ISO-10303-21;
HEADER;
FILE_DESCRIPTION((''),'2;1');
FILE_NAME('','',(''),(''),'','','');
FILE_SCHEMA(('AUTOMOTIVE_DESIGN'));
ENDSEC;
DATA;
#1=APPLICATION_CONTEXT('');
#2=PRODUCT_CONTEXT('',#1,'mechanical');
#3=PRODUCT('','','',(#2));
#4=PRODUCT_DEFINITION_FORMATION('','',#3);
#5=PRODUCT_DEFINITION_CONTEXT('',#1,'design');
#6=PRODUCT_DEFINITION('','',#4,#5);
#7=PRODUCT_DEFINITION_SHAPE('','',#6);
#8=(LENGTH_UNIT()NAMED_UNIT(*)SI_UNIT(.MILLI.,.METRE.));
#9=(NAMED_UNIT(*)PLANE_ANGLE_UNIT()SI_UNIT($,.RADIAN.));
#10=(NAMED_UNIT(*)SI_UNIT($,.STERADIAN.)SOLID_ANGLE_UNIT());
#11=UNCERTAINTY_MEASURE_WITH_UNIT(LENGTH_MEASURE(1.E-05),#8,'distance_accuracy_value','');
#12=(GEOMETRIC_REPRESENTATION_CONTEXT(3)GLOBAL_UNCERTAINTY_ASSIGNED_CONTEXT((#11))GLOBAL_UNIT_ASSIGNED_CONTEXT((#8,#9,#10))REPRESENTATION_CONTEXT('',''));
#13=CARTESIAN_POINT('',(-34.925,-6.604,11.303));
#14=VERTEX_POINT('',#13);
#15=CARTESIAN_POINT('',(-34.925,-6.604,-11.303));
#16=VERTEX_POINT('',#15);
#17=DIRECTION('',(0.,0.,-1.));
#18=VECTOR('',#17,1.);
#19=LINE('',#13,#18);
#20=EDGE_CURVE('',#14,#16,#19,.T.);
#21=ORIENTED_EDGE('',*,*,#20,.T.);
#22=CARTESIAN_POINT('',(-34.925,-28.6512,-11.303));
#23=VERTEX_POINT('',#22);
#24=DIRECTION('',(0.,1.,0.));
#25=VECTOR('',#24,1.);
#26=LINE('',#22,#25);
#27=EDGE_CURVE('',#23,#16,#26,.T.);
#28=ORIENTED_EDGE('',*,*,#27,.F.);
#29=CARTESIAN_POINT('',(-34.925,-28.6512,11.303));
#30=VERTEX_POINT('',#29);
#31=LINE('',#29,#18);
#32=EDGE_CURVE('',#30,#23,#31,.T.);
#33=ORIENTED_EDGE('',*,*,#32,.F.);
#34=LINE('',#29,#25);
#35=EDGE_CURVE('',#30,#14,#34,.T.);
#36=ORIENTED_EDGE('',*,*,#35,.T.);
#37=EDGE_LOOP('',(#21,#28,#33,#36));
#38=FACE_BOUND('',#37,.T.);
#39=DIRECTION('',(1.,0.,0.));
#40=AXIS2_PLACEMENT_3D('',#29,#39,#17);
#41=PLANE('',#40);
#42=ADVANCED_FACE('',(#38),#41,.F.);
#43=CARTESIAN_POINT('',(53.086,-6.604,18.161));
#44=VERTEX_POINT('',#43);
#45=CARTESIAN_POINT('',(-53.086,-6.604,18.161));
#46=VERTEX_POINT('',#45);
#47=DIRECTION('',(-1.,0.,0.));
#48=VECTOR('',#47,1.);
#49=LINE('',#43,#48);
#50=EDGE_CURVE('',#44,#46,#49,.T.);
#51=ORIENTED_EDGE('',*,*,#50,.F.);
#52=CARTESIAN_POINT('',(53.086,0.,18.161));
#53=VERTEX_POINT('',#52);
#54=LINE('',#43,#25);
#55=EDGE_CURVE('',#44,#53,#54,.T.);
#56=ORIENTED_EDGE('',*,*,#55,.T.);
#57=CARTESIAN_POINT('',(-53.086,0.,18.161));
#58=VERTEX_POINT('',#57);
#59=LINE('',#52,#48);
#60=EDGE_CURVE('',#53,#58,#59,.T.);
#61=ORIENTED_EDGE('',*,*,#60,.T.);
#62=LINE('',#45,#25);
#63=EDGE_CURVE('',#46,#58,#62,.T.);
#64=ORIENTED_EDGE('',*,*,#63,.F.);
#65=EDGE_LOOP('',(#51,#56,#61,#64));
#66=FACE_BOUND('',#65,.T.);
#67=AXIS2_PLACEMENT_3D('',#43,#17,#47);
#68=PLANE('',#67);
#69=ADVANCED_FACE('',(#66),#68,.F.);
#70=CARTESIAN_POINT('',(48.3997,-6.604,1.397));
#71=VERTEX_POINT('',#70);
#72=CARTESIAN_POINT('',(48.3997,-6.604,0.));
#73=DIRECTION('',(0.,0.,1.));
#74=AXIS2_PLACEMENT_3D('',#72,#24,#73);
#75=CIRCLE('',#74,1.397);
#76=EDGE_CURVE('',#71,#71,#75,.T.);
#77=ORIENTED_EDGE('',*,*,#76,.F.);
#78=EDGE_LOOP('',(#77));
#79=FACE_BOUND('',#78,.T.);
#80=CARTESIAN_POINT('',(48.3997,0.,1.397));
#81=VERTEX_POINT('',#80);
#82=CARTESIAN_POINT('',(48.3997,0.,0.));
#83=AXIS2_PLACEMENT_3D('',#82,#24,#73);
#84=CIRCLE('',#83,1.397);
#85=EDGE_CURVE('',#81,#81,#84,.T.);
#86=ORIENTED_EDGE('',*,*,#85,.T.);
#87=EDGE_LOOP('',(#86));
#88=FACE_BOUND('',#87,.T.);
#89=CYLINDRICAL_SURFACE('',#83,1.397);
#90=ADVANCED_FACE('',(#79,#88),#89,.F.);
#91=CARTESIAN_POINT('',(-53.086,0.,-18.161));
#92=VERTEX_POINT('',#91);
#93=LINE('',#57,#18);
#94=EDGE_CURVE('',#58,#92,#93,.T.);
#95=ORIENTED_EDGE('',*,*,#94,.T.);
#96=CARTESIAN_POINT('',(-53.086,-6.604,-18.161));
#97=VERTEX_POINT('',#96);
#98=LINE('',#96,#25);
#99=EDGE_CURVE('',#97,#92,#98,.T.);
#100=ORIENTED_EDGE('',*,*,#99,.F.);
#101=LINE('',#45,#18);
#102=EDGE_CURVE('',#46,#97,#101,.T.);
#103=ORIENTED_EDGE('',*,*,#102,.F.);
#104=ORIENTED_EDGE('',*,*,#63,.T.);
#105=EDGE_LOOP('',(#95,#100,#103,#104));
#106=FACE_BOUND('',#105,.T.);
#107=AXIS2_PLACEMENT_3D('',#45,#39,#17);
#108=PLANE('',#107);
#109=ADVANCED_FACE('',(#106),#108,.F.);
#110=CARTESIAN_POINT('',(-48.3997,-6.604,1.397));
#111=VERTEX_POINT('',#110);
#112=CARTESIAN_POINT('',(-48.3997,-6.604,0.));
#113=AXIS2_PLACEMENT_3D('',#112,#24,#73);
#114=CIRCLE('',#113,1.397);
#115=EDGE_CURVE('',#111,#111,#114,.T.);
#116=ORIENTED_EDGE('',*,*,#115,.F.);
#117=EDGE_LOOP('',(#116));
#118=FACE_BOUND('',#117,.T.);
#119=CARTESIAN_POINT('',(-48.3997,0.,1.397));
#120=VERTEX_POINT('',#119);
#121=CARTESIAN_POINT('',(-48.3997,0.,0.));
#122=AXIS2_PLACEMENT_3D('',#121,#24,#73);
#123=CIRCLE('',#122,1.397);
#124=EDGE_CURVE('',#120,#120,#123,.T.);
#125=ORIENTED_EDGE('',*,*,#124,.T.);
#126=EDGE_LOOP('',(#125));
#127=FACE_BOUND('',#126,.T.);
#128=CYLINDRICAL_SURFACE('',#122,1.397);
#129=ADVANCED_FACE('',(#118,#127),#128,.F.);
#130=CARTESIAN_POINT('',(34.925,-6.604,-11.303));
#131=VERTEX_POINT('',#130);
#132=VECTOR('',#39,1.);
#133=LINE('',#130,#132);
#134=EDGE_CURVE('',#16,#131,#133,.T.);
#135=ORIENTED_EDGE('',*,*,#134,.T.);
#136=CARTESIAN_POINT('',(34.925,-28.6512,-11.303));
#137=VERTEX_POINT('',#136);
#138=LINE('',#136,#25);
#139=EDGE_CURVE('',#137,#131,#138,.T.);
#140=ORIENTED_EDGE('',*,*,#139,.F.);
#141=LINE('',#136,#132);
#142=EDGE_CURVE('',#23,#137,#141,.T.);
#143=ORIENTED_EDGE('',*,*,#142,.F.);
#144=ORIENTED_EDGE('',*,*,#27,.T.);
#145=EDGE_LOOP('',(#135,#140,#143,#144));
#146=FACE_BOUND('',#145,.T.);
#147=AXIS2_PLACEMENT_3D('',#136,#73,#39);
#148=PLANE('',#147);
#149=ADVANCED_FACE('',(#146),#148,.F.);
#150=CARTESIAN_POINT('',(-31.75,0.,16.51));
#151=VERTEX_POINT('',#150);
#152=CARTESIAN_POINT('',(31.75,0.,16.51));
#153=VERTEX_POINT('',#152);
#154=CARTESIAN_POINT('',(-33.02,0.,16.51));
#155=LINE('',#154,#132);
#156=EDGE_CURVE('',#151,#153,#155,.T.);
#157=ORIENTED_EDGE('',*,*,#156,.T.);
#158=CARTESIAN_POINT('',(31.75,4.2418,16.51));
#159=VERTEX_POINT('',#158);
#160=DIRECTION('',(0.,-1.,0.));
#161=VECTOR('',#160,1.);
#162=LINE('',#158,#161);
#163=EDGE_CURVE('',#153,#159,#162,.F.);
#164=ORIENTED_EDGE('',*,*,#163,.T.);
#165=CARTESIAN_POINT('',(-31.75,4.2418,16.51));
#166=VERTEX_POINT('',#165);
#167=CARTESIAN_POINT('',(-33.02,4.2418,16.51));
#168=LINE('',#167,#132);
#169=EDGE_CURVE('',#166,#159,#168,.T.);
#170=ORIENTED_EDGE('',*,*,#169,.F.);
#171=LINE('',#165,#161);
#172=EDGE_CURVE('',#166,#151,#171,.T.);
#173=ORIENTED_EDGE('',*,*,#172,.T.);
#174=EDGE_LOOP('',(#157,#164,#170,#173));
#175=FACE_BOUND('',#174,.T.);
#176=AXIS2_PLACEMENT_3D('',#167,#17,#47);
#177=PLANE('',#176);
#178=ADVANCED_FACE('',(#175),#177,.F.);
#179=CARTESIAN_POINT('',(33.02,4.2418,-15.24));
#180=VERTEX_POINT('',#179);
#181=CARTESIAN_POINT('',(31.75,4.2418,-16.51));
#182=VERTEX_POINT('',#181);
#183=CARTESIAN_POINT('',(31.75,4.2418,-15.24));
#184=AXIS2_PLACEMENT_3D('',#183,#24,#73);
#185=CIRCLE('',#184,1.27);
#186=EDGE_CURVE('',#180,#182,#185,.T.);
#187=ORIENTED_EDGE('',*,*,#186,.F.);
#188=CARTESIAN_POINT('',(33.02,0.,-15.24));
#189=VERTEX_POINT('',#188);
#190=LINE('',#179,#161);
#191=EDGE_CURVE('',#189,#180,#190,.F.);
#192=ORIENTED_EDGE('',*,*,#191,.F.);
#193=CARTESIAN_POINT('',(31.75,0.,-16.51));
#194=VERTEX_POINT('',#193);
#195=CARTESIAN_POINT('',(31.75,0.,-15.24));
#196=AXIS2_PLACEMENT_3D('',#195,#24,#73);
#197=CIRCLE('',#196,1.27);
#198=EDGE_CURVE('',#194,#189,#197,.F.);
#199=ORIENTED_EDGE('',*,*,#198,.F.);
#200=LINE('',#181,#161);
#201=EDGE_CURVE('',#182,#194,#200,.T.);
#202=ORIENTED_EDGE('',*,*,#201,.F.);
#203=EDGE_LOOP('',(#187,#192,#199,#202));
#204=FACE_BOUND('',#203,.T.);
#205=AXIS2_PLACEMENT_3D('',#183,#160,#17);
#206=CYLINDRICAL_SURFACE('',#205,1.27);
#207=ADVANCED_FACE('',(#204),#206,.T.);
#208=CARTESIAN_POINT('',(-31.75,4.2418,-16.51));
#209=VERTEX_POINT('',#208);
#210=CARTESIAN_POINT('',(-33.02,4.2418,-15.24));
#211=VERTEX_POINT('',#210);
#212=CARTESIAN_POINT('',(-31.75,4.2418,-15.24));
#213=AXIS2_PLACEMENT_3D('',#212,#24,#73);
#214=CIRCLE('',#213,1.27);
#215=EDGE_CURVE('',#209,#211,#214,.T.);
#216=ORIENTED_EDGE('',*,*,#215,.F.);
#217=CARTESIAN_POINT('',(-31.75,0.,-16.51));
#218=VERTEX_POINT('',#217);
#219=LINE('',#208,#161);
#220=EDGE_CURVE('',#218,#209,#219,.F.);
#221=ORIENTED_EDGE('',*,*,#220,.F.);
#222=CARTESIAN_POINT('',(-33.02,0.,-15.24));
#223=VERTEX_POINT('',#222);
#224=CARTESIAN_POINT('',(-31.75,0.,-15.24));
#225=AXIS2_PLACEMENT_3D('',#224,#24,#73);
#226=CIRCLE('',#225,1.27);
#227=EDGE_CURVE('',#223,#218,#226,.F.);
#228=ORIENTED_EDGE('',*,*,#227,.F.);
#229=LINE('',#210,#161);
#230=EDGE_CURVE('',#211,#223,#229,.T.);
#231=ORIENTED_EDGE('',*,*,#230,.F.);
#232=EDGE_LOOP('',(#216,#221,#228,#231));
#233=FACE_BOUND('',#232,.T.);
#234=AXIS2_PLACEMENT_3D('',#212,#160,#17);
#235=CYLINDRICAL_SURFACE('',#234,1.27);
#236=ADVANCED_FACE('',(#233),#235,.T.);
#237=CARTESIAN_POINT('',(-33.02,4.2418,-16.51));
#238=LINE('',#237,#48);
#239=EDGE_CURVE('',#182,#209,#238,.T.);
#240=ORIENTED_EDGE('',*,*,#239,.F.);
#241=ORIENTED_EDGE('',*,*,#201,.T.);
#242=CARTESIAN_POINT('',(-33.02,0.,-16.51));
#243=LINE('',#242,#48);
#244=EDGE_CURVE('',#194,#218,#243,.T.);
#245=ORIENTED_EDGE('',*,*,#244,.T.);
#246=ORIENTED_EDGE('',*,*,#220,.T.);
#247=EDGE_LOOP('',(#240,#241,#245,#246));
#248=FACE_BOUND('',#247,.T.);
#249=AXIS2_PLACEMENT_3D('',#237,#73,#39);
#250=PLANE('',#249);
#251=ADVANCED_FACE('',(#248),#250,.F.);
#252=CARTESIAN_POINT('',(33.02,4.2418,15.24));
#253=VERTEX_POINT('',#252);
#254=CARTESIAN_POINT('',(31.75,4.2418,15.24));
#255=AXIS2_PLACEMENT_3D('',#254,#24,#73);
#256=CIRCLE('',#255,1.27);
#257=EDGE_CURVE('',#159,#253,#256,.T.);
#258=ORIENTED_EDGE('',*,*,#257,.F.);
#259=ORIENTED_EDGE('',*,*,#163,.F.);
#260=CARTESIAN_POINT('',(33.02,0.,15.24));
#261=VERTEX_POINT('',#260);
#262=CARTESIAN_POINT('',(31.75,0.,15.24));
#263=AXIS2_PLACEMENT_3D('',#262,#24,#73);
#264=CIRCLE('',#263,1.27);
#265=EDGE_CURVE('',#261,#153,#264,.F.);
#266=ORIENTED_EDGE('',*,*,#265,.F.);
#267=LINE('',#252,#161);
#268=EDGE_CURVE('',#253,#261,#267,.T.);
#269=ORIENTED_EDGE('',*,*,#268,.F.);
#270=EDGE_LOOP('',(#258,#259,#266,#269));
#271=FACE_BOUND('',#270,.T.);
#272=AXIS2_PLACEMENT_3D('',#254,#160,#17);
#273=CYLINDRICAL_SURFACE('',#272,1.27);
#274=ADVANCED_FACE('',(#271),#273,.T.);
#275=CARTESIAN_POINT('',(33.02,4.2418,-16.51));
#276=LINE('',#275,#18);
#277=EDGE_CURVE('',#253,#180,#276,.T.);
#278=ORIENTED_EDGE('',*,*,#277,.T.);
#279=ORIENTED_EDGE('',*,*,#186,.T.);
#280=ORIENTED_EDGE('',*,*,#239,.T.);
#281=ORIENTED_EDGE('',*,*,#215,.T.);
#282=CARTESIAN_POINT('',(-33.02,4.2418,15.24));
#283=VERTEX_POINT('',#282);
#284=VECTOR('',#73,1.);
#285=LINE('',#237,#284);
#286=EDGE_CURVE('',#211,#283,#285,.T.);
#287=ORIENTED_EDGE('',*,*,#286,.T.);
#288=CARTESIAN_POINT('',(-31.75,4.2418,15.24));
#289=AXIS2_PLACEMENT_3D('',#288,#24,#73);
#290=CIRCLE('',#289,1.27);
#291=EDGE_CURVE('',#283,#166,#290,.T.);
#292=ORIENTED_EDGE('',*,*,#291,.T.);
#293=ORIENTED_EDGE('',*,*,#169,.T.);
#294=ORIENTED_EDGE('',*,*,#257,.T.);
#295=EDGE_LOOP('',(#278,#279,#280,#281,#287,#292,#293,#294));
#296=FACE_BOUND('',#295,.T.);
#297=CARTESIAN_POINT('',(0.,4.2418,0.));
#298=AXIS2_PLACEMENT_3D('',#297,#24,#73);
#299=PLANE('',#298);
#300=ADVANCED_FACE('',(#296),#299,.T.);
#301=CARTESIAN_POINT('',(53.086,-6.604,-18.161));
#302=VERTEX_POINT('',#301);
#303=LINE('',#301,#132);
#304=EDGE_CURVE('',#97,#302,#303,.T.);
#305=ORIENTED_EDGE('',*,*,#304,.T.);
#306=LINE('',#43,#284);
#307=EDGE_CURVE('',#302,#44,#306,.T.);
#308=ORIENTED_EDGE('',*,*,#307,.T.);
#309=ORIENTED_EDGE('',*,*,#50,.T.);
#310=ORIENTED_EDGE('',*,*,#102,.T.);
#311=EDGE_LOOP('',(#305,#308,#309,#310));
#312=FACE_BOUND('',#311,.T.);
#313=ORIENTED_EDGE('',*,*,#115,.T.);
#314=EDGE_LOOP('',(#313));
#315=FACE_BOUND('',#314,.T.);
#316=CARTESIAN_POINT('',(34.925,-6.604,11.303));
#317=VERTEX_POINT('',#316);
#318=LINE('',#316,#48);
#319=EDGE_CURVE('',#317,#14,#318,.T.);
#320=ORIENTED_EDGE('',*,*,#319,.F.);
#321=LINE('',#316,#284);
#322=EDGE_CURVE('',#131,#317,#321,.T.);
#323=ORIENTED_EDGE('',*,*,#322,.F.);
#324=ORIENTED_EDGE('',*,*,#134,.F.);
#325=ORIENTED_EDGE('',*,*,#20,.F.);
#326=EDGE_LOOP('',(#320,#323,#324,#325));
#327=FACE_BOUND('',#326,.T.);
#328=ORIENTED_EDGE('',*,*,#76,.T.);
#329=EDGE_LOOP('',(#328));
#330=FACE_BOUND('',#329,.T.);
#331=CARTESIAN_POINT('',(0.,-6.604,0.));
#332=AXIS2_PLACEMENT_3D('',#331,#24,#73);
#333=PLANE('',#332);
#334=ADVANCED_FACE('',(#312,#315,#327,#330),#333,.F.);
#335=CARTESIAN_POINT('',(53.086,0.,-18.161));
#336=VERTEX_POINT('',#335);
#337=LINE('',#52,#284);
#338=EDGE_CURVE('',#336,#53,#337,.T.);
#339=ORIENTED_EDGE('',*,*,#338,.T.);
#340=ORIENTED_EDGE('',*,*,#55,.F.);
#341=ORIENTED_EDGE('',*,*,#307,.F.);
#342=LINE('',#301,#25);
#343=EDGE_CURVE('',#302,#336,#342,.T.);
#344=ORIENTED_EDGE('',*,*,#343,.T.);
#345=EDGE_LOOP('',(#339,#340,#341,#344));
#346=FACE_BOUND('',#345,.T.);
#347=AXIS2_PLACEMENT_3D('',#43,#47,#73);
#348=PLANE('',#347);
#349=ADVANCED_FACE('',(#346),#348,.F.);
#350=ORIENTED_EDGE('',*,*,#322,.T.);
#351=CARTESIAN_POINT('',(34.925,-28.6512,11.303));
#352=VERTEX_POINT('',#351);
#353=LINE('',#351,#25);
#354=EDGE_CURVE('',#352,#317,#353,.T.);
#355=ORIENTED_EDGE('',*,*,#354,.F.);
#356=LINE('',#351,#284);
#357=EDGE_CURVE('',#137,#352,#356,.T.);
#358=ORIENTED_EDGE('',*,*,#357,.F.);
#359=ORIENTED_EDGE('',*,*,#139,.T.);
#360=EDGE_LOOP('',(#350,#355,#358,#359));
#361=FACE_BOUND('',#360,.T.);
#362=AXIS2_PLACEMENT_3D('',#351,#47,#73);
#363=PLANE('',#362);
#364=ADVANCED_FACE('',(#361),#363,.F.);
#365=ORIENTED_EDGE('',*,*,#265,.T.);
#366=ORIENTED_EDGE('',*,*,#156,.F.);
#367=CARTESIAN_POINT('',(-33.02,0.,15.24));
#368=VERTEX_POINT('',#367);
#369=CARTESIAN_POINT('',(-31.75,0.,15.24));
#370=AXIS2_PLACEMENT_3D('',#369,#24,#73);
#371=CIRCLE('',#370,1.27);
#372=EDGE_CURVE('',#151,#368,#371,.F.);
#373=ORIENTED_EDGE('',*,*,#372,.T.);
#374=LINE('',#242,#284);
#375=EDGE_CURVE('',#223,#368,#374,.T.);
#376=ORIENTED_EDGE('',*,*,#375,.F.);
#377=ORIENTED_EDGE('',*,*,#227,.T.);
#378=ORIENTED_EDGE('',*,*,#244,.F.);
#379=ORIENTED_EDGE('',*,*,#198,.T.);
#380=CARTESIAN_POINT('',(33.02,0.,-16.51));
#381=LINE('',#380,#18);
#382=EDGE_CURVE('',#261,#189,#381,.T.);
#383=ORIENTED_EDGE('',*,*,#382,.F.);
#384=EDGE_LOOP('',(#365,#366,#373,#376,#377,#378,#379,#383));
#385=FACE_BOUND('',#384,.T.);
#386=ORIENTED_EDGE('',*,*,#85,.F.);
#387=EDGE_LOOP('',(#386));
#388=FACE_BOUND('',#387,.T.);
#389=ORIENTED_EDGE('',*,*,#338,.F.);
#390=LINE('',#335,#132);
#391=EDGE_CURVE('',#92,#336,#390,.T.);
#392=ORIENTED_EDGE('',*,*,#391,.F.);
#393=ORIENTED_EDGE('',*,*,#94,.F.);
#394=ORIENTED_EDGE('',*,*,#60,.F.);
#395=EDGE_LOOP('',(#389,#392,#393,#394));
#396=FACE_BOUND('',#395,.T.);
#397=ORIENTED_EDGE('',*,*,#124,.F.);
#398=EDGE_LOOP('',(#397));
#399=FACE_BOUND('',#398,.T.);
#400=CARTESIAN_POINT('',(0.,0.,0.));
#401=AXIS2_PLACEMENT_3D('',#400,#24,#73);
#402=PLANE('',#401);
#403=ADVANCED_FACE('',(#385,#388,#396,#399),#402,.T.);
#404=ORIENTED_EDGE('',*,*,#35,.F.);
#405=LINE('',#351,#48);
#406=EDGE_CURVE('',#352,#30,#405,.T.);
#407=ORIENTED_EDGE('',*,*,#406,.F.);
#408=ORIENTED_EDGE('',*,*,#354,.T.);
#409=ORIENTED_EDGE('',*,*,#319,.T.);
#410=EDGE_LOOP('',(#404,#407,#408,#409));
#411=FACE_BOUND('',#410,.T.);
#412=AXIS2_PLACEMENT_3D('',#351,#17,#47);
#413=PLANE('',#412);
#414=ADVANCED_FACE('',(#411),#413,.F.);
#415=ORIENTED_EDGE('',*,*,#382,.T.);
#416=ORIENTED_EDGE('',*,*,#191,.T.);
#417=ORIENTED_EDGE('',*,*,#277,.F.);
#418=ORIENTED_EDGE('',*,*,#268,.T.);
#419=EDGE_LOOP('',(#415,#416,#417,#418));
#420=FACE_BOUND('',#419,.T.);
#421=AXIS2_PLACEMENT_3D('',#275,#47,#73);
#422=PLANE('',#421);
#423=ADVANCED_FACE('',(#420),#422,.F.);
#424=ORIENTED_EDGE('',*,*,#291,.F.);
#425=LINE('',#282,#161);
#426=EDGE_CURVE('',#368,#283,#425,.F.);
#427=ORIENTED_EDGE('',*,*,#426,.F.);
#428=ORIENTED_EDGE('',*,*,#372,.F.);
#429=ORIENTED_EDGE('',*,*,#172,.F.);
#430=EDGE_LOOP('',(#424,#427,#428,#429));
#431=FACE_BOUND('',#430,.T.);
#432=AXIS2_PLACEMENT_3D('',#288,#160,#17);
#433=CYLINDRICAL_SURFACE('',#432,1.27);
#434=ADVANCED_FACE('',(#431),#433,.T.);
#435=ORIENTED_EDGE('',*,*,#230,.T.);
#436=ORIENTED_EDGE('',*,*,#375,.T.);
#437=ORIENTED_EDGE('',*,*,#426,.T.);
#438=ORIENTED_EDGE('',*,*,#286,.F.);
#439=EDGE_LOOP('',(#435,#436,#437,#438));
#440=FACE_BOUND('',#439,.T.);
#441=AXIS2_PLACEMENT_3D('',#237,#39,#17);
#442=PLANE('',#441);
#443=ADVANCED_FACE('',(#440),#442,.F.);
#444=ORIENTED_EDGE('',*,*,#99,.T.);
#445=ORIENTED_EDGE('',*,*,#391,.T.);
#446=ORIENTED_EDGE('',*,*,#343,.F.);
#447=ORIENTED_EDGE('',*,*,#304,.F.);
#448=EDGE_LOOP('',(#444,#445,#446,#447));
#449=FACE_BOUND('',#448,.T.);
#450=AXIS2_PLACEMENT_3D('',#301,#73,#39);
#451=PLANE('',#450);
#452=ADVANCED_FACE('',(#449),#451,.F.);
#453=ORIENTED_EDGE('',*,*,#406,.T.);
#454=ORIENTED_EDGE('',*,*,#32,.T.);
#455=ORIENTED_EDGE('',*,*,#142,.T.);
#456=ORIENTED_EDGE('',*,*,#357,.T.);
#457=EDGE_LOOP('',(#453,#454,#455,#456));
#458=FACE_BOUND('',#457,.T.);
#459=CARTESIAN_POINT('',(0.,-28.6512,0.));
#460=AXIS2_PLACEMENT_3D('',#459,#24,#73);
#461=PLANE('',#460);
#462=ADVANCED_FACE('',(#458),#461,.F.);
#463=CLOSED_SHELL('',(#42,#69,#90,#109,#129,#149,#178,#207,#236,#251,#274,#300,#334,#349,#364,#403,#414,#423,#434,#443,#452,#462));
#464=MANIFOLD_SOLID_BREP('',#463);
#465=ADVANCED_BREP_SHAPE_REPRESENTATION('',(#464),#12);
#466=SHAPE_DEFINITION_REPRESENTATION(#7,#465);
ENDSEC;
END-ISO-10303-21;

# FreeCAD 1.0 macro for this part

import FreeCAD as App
import Part
import Sketcher
from FreeCAD import Vector
Q = App.Units.Quantity


def edges_at(feature, points):
    """Names of the edges that pass closest to the given points."""
    edges = feature.Shape.Edges
    near = lambda p: min(range(len(edges)), key=lambda i: edges[i].distToShape(Part.Vertex(*p))[0])
    return sorted({f"Edge{near(p) + 1}" for p in points})


def add_polygon(sketch, points):
    """Adds a closed chain of lines whose ends are joined by coincident constraints."""
    first, n = sketch.GeometryCount, len(points)
    for a, b in zip(points, points[1:] + points[:1]):
        sketch.addGeometry(Part.LineSegment(App.Vector(*a, 0), App.Vector(*b, 0)), False)
    for i in range(n):
        sketch.addConstraint(Sketcher.Constraint("Coincident", first + i, 2, first + (i + 1) % n, 1))

doc = App.newDocument("Part")
body = doc.addObject("PartDesign::Body", "Body")

# Sketch on XZ plane
sketch1 = body.newObject("Sketcher::SketchObject", "Sketch")
sketch1.AttachmentSupport = (doc.getObject("XZ_Plane"), [""])
sketch1.MapMode = "FlatFace"
add_polygon(sketch1, [(-33, -17), (-33, 17), (33, 17), (33, -17)])  # lines 0-3
sketch1.addConstraint([
    Sketcher.Constraint("Vertical", 0),
    Sketcher.Constraint("Horizontal", 1),
    Sketcher.Constraint("Vertical", 2),
    Sketcher.Constraint("Horizontal", 3),
    Sketcher.Constraint("Symmetric", 0, 2, 2, 2, -1, 1),
    Sketcher.Constraint("DistanceX", 1, 1, 1, 2, Q("2.6 in")),
    Sketcher.Constraint("DistanceY", 0, 1, 0, 2, Q("1.3 in")),
])
pad1 = body.newObject("PartDesign::Pad", "Pad")
pad1.Profile = sketch1
pad1.Length = Q("0.167 in")
pad1.Reversed = True
doc.recompute()

fillet = body.newObject("PartDesign::Fillet", "Fillet")
fillet.Base = (pad1, edges_at(pad1, [
    (33.02, 2.121, 16.51),
    (-33.02, 2.121, 16.51),
    (-33.02, 2.121, -16.51),
    (33.02, 2.121, -16.51),
]))
fillet.Radius = Q("0.05 in")

# Sketch on XZ plane
sketch2 = body.newObject("Sketcher::SketchObject", "Sketch001")
sketch2.AttachmentSupport = (doc.getObject("XZ_Plane"), [""])
sketch2.MapMode = "FlatFace"
add_polygon(sketch2, [(-53, 18), (-53, -18), (53, -18), (53, 18)])  # lines 0-3
sketch2.addConstraint([
    Sketcher.Constraint("Vertical", 0),
    Sketcher.Constraint("Horizontal", 1),
    Sketcher.Constraint("Vertical", 2),
    Sketcher.Constraint("Horizontal", 3),
    Sketcher.Constraint("Symmetric", 0, 2, 2, 2, -1, 1),
    Sketcher.Constraint("DistanceX", 1, 1, 1, 2, Q("4.18 in")),
    Sketcher.Constraint("DistanceY", 0, 2, 0, 1, Q("1.43 in")),
])
pad2 = body.newObject("PartDesign::Pad", "Pad001")
pad2.Profile = sketch2
pad2.Length = Q("0.26 in")

# Sketch on XZ plane
sketch3 = body.newObject("Sketcher::SketchObject", "Sketch002")
sketch3.AttachmentSupport = (doc.getObject("XZ_Plane"), [""])
sketch3.MapMode = "FlatFace"
sketch3.addGeometry([
    Part.Circle(Vector(-48.4, 0, 0), Vector(0, 0, 1), 1.4),
    Part.Circle(Vector(48.4, 0, 0), Vector(0, 0, 1), 1.4),
], False)
sketch3.addConstraint([
    Sketcher.Constraint("Equal", 0, 1),
    Sketcher.Constraint("Symmetric", 0, 3, 1, 3, -1, 1),
    Sketcher.Constraint("PointOnObject", 0, 3, -1),
    Sketcher.Constraint("Diameter", 0, Q("0.11 in")),
    Sketcher.Constraint("DistanceX", 0, 3, 1, 3, Q("3.811 in")),
])
doc.recompute()
hole = body.newObject("PartDesign::Hole", "Hole")
hole.Profile = sketch3
hole.ThreadType = "None"
hole.Diameter = Q("0.11 in")
hole.DepthType = "ThroughAll"
hole.Reversed = True

# Sketch on XZ plane
sketch4 = body.newObject("Sketcher::SketchObject", "Sketch003")
sketch4.AttachmentSupport = (doc.getObject("XZ_Plane"), [""])
sketch4.MapMode = "FlatFace"
sketch4.AttachmentOffset = App.Placement(Vector(0, 0, 0.26 * 25.4), App.Rotation())
add_polygon(sketch4, [(-35, 11), (-35, -11), (35, -11), (35, 11)])  # lines 0-3
sketch4.addConstraint([
    Sketcher.Constraint("Vertical", 0),
    Sketcher.Constraint("Horizontal", 1),
    Sketcher.Constraint("Vertical", 2),
    Sketcher.Constraint("Horizontal", 3),
    Sketcher.Constraint("Symmetric", 0, 2, 2, 2, -1, 1),
    Sketcher.Constraint("DistanceX", 1, 1, 1, 2, Q("2.75 in")),
    Sketcher.Constraint("DistanceY", 0, 2, 0, 1, Q("0.89 in")),
])
pad3 = body.newObject("PartDesign::Pad", "Pad002")
pad3.Profile = sketch4
pad3.Length = Q("0.868 in")

doc.recompute()
